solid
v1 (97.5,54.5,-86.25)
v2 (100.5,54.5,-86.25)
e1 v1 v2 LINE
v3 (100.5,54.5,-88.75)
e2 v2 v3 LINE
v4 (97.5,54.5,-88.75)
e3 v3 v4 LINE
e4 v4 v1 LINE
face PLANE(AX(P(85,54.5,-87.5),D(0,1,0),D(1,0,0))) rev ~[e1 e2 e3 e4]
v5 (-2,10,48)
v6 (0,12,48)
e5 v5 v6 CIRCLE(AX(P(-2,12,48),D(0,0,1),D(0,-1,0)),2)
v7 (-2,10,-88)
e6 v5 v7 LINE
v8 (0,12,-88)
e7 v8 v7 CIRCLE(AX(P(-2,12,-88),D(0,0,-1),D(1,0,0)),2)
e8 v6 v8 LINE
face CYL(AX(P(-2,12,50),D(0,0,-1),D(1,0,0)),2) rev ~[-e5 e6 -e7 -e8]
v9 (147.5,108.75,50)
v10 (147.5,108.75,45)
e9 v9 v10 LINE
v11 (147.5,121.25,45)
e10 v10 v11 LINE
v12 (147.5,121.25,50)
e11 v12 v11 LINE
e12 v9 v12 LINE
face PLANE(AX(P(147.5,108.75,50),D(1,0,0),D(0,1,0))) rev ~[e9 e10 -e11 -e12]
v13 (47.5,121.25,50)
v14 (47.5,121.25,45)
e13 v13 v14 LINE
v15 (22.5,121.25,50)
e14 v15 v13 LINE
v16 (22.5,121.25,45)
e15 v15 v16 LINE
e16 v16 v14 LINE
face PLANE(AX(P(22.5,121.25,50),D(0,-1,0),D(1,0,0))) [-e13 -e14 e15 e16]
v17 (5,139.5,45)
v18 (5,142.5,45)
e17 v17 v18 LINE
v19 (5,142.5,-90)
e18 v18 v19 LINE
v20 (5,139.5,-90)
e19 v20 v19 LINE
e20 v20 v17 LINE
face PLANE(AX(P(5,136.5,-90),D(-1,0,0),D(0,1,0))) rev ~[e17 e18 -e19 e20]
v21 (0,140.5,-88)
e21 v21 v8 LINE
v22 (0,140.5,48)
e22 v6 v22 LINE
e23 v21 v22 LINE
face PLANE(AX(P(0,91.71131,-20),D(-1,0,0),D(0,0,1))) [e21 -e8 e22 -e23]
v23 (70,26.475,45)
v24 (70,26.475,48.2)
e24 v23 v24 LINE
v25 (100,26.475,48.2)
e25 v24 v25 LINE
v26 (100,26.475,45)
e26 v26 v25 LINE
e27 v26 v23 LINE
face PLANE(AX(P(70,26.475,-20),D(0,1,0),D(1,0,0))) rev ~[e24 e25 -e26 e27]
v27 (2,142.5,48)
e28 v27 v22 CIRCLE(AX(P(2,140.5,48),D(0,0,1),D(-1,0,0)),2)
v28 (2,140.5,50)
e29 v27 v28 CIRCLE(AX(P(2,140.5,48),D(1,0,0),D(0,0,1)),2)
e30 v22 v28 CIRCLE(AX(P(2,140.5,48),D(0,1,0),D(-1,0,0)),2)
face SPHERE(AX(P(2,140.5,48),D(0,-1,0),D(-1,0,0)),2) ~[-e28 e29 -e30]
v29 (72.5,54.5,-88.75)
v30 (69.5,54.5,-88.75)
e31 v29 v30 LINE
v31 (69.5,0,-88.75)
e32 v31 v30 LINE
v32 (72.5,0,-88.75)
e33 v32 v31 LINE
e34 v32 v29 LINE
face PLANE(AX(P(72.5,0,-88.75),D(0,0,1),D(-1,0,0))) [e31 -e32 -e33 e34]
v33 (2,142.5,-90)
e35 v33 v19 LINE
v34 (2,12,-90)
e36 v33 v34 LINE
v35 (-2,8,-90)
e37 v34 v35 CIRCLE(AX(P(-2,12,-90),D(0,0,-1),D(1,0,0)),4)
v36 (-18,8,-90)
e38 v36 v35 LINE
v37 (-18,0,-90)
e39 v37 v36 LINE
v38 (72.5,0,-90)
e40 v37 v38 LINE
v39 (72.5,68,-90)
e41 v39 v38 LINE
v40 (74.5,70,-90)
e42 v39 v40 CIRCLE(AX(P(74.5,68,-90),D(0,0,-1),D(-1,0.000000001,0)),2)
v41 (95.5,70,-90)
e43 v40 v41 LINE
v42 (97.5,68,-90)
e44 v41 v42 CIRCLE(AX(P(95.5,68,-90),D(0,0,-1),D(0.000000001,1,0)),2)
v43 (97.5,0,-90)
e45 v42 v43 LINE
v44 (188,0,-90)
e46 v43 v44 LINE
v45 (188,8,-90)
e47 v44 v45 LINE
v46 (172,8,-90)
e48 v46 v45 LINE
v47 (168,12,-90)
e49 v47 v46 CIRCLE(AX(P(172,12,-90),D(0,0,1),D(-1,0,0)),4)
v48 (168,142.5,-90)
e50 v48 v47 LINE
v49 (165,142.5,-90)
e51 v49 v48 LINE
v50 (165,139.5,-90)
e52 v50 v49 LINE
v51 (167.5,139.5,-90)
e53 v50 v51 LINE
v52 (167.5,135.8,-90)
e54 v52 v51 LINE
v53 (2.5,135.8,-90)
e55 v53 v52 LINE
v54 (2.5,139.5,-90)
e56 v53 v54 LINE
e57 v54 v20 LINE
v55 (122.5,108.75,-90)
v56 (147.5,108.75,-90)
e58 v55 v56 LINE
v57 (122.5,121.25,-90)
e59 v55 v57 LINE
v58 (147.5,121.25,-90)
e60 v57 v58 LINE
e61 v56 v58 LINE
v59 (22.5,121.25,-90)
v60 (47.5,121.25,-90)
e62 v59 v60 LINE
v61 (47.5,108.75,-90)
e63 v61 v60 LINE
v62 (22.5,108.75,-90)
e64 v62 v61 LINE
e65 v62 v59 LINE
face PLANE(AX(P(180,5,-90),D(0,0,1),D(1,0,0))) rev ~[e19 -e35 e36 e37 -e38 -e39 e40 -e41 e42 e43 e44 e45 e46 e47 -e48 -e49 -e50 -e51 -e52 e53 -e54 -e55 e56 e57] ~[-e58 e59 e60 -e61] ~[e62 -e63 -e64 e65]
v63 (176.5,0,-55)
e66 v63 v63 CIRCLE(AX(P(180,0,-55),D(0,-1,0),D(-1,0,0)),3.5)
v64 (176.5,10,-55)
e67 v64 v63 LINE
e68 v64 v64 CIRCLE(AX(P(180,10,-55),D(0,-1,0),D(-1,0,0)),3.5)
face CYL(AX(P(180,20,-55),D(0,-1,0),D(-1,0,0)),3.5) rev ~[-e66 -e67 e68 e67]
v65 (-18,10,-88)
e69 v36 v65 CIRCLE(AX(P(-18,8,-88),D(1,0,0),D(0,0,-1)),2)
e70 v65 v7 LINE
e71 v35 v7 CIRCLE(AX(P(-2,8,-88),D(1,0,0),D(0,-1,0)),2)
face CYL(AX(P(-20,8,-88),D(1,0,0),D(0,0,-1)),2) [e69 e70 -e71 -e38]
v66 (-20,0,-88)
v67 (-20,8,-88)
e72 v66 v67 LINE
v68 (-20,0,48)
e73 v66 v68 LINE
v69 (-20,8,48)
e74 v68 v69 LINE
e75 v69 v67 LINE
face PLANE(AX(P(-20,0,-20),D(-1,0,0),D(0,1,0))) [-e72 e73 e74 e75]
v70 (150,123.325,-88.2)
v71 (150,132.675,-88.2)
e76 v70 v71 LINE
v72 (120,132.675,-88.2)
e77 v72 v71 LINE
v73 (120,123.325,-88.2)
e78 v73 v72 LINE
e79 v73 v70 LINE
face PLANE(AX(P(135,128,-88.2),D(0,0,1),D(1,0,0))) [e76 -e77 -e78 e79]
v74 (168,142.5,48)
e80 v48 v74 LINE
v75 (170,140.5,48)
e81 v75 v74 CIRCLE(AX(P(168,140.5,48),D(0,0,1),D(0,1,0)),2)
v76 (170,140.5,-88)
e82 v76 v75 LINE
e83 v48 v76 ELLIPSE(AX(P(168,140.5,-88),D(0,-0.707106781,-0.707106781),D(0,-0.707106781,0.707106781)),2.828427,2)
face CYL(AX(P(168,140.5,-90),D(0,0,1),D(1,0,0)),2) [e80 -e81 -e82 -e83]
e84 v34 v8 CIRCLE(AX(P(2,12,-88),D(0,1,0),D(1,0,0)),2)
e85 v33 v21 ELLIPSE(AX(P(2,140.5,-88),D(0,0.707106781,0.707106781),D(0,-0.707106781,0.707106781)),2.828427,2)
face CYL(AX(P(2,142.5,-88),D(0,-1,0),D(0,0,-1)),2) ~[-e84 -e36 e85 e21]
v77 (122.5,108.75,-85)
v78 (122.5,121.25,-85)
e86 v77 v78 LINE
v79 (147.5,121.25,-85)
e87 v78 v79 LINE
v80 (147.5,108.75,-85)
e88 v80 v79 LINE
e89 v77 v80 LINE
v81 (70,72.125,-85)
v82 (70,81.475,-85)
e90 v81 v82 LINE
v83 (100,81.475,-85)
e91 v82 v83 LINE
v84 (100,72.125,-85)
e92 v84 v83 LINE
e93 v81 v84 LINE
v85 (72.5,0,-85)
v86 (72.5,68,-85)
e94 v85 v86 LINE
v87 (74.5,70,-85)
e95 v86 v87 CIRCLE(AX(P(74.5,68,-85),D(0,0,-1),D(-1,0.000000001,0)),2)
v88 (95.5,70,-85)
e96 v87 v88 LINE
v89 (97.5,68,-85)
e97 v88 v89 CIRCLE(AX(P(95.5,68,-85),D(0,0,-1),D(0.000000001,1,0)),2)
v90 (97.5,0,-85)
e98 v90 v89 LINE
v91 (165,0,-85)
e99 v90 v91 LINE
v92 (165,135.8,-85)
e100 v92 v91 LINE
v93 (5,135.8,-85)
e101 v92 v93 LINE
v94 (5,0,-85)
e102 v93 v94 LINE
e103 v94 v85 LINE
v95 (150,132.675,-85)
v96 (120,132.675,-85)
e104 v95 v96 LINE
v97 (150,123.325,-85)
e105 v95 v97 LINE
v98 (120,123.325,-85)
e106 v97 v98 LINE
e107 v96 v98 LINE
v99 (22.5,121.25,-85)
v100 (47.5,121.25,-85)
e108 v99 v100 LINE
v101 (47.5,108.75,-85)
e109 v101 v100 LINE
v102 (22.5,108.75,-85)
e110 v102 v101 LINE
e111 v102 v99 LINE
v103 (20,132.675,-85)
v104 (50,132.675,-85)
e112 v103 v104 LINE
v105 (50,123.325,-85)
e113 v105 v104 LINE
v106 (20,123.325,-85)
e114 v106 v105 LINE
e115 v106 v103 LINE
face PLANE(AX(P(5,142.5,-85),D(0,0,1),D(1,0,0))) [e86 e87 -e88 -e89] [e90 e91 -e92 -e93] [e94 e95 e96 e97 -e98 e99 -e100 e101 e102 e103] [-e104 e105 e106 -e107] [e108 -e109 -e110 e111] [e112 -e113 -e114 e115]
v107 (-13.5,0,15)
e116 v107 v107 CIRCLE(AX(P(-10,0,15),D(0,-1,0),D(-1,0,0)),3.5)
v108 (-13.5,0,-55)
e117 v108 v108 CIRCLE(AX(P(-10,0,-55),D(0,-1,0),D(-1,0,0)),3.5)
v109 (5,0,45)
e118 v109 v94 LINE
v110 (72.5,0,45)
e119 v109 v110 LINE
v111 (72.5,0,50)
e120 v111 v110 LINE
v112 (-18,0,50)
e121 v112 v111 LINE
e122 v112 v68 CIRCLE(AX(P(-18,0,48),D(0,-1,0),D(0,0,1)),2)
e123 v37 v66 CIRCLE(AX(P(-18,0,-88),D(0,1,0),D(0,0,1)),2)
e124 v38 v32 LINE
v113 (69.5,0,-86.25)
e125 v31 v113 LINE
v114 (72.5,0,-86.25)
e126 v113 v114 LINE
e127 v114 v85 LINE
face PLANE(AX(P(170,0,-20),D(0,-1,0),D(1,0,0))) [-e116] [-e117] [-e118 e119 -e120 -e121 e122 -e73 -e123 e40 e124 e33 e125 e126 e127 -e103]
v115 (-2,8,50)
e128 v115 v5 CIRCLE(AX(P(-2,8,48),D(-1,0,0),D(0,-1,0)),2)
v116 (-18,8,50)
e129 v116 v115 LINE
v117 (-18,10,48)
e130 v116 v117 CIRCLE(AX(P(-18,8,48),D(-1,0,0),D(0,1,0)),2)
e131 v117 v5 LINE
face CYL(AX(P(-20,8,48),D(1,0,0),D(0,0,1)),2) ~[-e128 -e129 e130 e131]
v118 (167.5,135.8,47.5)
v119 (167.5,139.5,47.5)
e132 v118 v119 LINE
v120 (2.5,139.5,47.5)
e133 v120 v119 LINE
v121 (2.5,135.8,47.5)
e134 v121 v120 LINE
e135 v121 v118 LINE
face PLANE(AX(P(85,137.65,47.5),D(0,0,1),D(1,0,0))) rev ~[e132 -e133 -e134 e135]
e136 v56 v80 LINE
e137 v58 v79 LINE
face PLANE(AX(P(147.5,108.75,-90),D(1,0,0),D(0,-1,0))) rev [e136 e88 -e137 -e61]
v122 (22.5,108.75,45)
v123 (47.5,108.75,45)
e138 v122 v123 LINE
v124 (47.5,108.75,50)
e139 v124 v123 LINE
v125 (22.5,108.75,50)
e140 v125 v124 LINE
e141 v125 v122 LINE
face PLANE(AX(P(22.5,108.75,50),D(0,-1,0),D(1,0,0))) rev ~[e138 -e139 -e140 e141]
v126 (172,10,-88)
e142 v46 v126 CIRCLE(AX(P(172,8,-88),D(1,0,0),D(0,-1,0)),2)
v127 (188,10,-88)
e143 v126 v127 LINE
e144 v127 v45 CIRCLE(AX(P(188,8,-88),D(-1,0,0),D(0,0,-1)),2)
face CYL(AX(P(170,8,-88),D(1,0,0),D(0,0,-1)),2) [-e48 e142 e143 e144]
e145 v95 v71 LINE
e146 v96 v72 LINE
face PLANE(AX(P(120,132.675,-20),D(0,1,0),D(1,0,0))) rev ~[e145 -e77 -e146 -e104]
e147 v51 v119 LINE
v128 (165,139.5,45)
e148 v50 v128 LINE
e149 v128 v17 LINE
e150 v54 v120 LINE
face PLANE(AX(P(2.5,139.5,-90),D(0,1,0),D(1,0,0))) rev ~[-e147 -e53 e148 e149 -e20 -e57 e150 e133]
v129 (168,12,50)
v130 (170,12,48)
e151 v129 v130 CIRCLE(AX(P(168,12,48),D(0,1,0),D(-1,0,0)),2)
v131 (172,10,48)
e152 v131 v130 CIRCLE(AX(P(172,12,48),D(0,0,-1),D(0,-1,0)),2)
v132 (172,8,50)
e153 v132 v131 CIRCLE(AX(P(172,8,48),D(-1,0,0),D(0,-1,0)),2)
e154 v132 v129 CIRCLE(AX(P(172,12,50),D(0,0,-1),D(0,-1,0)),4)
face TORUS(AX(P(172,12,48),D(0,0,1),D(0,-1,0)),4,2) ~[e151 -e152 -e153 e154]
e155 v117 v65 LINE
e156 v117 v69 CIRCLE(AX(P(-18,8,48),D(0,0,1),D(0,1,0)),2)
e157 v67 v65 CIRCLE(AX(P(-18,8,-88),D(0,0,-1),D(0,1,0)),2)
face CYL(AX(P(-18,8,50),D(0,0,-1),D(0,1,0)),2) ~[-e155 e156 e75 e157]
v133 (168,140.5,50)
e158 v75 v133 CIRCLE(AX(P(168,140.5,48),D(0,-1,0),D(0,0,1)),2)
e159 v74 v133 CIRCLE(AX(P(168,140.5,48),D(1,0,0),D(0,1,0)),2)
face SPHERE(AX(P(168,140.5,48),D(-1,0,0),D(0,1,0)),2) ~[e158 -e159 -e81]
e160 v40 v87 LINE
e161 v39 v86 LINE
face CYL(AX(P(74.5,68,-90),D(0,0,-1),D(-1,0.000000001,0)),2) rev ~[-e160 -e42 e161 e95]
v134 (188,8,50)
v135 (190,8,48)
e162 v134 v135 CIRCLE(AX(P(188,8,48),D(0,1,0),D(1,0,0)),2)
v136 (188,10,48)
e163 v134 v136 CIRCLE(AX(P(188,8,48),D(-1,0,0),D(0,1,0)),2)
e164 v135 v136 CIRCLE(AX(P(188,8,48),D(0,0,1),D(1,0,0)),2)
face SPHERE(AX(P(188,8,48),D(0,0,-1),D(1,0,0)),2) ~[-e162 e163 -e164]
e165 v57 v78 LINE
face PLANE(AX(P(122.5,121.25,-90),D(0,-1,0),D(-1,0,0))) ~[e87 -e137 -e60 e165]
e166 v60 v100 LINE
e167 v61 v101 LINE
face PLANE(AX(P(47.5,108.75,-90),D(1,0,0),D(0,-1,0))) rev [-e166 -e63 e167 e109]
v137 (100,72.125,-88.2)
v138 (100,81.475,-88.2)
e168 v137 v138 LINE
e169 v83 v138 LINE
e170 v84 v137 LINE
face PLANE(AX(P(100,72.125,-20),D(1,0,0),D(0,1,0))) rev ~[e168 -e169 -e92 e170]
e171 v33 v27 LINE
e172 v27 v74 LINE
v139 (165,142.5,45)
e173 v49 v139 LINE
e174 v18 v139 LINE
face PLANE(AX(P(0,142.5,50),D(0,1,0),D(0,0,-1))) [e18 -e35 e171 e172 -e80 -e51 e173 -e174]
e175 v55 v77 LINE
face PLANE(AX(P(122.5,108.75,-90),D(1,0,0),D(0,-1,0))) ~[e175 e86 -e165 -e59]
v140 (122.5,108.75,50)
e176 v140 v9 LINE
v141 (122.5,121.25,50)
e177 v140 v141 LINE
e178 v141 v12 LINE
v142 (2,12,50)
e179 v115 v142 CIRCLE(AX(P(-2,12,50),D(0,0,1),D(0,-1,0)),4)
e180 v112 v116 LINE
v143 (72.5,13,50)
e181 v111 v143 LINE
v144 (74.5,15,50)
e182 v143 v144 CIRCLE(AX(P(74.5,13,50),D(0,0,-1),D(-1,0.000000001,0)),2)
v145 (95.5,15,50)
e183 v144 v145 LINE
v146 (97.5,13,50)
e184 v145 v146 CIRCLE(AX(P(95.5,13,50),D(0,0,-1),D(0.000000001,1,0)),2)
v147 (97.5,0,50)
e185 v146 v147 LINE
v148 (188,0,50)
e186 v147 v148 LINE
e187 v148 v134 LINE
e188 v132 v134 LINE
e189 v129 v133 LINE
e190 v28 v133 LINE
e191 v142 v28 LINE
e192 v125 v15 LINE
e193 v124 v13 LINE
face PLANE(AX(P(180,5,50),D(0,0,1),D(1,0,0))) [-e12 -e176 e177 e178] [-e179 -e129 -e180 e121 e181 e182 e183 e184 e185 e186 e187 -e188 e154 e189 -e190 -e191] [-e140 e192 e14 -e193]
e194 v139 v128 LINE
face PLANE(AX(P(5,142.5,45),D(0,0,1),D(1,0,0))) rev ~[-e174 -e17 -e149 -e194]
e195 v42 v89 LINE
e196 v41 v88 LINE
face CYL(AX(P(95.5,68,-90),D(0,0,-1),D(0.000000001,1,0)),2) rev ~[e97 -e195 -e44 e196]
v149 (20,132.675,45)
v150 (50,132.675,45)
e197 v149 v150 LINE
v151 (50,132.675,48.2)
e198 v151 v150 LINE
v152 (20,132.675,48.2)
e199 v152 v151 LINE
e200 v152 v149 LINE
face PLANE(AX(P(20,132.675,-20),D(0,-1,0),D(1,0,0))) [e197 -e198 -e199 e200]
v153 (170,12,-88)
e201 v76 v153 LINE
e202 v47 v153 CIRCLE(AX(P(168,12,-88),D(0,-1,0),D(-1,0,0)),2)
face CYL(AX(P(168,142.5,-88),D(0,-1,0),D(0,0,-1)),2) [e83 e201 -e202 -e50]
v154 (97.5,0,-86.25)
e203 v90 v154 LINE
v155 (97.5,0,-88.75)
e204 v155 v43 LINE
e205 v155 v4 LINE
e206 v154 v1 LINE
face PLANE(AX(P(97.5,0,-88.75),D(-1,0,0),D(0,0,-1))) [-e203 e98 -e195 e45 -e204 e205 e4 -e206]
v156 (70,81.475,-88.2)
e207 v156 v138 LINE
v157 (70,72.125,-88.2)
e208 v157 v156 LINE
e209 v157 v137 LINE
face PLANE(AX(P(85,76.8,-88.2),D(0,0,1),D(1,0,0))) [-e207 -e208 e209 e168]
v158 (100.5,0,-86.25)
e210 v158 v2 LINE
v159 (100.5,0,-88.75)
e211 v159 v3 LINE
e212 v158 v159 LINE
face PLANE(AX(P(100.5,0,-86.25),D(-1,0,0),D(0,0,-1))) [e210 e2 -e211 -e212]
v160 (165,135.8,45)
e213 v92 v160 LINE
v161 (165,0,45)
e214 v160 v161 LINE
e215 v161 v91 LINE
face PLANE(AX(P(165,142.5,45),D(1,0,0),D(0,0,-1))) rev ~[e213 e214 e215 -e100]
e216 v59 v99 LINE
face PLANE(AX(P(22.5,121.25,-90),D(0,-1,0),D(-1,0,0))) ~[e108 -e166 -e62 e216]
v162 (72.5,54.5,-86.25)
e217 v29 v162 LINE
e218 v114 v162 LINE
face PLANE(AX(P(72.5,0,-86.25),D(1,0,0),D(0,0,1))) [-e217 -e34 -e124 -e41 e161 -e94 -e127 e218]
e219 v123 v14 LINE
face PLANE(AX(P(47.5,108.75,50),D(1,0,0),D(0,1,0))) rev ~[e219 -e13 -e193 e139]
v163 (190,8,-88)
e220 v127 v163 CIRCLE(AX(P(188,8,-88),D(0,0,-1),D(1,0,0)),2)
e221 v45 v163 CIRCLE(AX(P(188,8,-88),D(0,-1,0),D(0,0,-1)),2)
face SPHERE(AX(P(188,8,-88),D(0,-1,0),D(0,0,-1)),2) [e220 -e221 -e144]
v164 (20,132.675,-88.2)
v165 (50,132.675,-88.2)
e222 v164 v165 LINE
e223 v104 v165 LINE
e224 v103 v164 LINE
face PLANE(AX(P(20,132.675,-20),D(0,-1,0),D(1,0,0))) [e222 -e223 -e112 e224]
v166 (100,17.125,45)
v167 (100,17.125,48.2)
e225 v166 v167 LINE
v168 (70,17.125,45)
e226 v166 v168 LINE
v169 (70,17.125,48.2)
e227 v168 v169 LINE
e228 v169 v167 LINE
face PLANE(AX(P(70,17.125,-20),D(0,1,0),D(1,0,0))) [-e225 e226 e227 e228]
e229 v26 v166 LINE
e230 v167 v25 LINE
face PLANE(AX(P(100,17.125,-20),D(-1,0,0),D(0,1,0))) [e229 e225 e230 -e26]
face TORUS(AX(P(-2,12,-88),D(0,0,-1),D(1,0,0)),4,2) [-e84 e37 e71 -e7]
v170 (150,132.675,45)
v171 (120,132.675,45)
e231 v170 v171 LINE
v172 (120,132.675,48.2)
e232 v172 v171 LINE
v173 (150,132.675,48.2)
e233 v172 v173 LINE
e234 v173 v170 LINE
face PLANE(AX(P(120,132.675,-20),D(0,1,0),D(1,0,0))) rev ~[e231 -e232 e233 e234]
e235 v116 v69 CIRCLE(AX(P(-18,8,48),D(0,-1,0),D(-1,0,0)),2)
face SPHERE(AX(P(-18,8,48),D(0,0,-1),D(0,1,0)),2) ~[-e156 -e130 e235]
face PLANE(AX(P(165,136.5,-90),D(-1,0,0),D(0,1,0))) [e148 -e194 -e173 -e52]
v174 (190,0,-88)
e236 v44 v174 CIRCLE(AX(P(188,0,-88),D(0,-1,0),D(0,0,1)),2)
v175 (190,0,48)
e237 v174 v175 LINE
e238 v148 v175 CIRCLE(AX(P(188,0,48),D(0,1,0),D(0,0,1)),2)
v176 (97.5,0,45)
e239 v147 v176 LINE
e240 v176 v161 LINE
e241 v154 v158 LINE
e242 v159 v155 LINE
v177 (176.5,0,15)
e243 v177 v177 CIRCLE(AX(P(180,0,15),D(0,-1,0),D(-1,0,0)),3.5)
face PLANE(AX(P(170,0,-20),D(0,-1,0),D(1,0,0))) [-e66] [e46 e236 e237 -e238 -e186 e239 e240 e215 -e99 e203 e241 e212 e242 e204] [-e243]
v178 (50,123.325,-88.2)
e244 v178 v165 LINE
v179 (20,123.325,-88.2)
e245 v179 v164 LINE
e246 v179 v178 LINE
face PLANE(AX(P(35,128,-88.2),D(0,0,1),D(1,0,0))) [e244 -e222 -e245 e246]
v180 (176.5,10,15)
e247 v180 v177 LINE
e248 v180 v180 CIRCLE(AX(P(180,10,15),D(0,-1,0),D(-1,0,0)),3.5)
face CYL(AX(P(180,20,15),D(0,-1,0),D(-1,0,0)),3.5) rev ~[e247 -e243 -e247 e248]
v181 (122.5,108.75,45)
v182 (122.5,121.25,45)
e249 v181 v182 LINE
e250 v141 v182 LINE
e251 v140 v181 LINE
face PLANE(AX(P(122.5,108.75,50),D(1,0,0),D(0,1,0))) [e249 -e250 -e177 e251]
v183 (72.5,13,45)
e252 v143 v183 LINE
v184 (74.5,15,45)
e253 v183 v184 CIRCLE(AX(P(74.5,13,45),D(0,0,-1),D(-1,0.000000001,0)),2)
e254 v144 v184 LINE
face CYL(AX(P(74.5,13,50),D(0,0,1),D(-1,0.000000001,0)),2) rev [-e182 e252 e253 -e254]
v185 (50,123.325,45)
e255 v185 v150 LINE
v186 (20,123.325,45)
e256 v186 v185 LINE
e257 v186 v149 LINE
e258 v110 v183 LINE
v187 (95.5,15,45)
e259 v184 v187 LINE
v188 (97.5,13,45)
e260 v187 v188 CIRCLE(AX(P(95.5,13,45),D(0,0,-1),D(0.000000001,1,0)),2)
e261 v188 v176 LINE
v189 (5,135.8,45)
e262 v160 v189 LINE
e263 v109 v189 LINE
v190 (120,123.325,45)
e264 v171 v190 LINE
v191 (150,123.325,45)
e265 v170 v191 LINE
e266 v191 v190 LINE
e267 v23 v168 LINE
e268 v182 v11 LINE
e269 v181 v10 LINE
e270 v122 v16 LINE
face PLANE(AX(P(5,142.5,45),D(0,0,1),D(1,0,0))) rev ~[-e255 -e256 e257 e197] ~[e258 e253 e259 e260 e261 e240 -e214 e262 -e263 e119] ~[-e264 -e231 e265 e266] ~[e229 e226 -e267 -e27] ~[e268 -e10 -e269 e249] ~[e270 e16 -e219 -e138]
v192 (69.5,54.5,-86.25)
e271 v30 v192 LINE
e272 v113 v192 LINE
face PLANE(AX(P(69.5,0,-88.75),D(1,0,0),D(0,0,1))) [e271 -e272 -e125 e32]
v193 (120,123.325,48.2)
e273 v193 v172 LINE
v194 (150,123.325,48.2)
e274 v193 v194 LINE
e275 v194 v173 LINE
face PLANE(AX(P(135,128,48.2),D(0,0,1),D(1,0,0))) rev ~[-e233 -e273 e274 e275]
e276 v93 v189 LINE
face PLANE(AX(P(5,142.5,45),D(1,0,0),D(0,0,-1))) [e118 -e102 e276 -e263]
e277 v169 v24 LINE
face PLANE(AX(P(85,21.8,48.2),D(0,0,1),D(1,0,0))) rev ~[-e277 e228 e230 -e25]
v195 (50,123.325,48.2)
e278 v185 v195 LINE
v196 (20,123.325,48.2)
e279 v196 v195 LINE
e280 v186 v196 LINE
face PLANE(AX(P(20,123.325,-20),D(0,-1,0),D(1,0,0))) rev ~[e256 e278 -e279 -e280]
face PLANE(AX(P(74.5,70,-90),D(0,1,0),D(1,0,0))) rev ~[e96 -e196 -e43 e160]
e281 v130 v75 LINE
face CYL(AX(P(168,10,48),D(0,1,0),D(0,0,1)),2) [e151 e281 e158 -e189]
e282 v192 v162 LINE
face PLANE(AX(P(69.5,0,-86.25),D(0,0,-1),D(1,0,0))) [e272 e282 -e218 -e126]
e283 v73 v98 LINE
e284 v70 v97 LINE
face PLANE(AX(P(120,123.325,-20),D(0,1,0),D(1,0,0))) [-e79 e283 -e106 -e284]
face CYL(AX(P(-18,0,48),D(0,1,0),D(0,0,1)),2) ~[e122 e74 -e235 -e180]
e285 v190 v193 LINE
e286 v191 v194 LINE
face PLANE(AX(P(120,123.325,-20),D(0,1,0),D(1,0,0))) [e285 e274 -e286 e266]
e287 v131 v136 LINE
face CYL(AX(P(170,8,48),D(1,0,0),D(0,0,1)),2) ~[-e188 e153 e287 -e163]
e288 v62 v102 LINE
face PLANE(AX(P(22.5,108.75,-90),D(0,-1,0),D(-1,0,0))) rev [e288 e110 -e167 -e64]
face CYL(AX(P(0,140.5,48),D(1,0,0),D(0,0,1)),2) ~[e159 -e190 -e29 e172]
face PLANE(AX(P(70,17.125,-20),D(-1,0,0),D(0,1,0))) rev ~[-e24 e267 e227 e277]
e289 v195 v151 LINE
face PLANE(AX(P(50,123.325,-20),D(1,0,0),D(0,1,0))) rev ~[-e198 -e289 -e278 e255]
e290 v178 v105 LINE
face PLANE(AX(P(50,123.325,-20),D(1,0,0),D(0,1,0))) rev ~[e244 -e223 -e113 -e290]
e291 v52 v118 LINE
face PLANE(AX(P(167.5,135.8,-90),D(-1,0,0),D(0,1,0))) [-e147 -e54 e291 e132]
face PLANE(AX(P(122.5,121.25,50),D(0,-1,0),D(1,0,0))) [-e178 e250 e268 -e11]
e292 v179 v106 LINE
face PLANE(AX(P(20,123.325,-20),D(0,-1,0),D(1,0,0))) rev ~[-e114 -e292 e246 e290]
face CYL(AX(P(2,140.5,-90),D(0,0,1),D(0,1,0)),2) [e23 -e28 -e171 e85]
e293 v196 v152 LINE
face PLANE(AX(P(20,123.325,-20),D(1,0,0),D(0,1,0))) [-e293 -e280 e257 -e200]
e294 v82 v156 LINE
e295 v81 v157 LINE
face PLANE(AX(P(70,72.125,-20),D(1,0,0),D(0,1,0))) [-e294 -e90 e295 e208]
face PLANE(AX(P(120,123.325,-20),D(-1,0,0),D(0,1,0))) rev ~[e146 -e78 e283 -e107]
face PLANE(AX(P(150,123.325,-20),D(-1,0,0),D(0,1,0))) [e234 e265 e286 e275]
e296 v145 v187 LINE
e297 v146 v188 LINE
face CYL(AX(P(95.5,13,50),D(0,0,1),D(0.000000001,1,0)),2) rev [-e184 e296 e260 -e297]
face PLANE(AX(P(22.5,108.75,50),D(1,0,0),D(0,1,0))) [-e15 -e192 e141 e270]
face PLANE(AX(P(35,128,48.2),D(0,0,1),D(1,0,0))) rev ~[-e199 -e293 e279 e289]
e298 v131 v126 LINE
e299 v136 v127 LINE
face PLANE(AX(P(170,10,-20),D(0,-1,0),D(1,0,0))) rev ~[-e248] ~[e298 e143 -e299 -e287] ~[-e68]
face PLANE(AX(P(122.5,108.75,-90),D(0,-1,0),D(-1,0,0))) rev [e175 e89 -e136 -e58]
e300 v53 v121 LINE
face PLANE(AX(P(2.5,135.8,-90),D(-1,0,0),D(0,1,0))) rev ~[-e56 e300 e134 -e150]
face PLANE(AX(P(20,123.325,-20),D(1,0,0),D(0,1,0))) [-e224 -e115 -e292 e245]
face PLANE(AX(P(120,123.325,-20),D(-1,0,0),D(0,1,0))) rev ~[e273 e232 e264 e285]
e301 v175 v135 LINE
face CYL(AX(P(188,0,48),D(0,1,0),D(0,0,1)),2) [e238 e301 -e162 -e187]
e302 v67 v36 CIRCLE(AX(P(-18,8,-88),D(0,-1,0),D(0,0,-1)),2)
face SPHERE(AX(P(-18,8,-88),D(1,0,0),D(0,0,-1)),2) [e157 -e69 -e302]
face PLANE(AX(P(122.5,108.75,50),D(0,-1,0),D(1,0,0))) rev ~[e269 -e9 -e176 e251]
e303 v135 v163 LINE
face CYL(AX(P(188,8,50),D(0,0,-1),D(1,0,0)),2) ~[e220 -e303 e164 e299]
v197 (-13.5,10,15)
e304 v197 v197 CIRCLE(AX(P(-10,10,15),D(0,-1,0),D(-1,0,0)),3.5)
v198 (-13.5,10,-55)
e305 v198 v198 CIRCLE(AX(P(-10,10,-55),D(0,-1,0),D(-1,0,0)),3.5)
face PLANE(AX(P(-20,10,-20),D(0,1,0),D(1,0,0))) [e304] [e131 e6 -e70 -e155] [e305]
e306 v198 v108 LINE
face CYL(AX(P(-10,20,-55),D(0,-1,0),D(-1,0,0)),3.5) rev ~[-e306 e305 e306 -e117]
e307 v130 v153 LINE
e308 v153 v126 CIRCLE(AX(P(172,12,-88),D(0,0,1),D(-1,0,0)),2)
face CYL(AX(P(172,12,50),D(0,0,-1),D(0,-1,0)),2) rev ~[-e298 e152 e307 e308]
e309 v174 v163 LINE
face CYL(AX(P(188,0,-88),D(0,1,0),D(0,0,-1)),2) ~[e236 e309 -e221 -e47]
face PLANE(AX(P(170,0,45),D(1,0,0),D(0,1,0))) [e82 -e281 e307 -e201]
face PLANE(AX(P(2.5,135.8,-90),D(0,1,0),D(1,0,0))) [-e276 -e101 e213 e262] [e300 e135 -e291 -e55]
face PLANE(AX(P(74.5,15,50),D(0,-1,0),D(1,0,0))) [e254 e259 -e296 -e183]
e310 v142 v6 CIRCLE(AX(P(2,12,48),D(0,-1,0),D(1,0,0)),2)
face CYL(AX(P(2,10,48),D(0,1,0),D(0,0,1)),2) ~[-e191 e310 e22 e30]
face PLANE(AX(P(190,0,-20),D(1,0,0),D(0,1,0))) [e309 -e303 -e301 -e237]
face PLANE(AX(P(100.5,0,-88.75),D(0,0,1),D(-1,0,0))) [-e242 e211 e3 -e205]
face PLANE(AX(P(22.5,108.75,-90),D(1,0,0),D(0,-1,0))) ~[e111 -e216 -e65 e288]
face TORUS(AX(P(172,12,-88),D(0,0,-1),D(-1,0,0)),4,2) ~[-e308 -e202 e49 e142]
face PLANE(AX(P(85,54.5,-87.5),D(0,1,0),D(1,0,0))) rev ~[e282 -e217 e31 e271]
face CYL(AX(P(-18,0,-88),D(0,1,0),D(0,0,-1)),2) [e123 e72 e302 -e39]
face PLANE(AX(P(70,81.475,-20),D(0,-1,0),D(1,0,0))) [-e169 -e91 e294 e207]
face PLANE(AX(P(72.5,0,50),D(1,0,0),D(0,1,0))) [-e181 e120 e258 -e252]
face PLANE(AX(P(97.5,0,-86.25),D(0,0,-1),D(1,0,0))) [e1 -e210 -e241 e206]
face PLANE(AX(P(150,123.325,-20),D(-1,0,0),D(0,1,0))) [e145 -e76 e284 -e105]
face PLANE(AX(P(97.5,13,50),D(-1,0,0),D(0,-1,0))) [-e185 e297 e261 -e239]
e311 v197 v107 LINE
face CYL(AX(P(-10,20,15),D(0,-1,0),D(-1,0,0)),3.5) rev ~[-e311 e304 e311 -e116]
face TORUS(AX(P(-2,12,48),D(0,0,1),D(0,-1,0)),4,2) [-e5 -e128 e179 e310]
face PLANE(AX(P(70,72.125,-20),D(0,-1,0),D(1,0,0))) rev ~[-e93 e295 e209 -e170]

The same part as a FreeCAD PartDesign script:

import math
import FreeCAD as App
import Part
import Sketcher
from FreeCAD import Vector
Q = App.Units.Quantity


def edges_at(feature, points):
    """Names of the edges that pass closest to the given points."""
    edges = feature.Shape.Edges
    near = lambda p: min(range(len(edges)), key=lambda i: edges[i].distToShape(Part.Vertex(*p))[0])
    return sorted({f"Edge{near(p) + 1}" for p in points})


def add_polygon(sketch, points):
    """Adds a closed chain of lines whose ends are joined by coincident constraints."""
    first, n = sketch.GeometryCount, len(points)
    for a, b in zip(points, points[1:] + points[:1]):
        sketch.addGeometry(Part.LineSegment(App.Vector(*a, 0), App.Vector(*b, 0)), False)
    for i in range(n):
        sketch.addConstraint(Sketcher.Constraint("Coincident", first + i, 2, first + (i + 1) % n, 1))

doc = App.newDocument("Part")
body = doc.addObject("PartDesign::Body", "Body")

# Sketch on YZ plane
sketch1 = doc.addObject("Sketcher::SketchObject", "Sketch")
body.addObject(sketch1)
sketch1.AttachmentSupport = (doc.YZ_Plane, [""])
sketch1.MapMode = "FlatFace"
add_polygon(sketch1, [(0, -90), (142.5, -90), (142.5, 50), (0, 50), (0, 45), (137.5, 45), (137.5, -85), (0, -85)])  # lines 0-7
sketch1.addConstraint(Sketcher.Constraint("Horizontal", 0))
sketch1.addConstraint(Sketcher.Constraint("Vertical", 1))
sketch1.addConstraint(Sketcher.Constraint("Horizontal", 2))
sketch1.addConstraint(Sketcher.Constraint("Vertical", 3))
sketch1.addConstraint(Sketcher.Constraint("Horizontal", 4))
sketch1.addConstraint(Sketcher.Constraint("Vertical", 5))
sketch1.addConstraint(Sketcher.Constraint("Horizontal", 6))
sketch1.addConstraint(Sketcher.Constraint("Vertical", 7))
sketch1.addConstraint(Sketcher.Constraint("PointOnObject", 2, 2, -2))
sketch1.addConstraint(Sketcher.Constraint("PointOnObject", 6, 2, -2))
sketch1.addConstraint(Sketcher.Constraint("Equal", 3, 7))
sketch1.addConstraint(Sketcher.Constraint("DistanceY", 1, 1, 1, 2, Q("140 mm")))
sketch1.addConstraint(Sketcher.Constraint("DistanceY", 3, 2, 3, 1, Q("5 mm")))
sketch1.addConstraint(Sketcher.Constraint("DistanceX", 0, 1, 0, 2, Q("142.5 mm")))
sketch1.addConstraint(Sketcher.Constraint("DistanceX", 4, 1, 4, 2, Q("137.5 mm")))
sketch1.addConstraint(Sketcher.Constraint("DistanceY", 0, 2, -1, 1, Q("90 mm")))
pad1 = doc.addObject("PartDesign::Pad", "Pad")
body.addObject(pad1)
pad1.Profile = sketch1
pad1.Length = 170

# Sketch on XY plane
sketch2 = doc.addObject("Sketcher::SketchObject", "Sketch001")
body.addObject(sketch2)
sketch2.AttachmentSupport = (doc.XY_Plane, [""])
sketch2.MapMode = "FlatFace"
sketch2.AttachmentOffset = App.Placement(Vector(0, 0, 45), App.Rotation())
add_polygon(sketch2, [(170, 142.5), (170, 0), (165, 0), (165, 142.5)])  # lines 0-3
add_polygon(sketch2, [(5, 142.5), (5, 0), (0, 0), (0, 142.5)])  # lines 4-7
sketch2.addConstraint(Sketcher.Constraint("Vertical", 0))
sketch2.addConstraint(Sketcher.Constraint("Horizontal", 1))
sketch2.addConstraint(Sketcher.Constraint("Vertical", 2))
sketch2.addConstraint(Sketcher.Constraint("Horizontal", 3))
sketch2.addConstraint(Sketcher.Constraint("Vertical", 4))
sketch2.addConstraint(Sketcher.Constraint("Horizontal", 5))
sketch2.addConstraint(Sketcher.Constraint("Vertical", 6))
sketch2.addConstraint(Sketcher.Constraint("Horizontal", 7))
sketch2.addConstraint(Sketcher.Constraint("Coincident", 5, 2, -1, 1))
sketch2.addConstraint(Sketcher.Constraint("PointOnObject", 0, 2, -1))
sketch2.addConstraint(Sketcher.Constraint("Horizontal", 3, 2, 6, 2))
sketch2.addConstraint(Sketcher.Constraint("Equal", 3, 5))
sketch2.addConstraint(Sketcher.Constraint("DistanceX", 1, 2, 1, 1, Q("5 mm")))
sketch2.addConstraint(Sketcher.Constraint("DistanceY", 0, 2, 0, 1, Q("142.5 mm")))
sketch2.addConstraint(Sketcher.Constraint("DistanceX", -1, 1, 0, 2, Q("170 mm")))
pad2 = doc.addObject("PartDesign::Pad", "Pad001")
body.addObject(pad2)
pad2.Profile = sketch2
pad2.Length = 130
pad2.Reversed = True

# Sketch on XZ plane
sketch3 = doc.addObject("Sketcher::SketchObject", "Sketch002")
body.addObject(sketch3)
sketch3.AttachmentSupport = (doc.XZ_Plane, [""])
sketch3.MapMode = "FlatFace"
sketch3.AttachmentOffset = App.Placement(Vector(0, 0, -142.5), App.Rotation())
add_polygon(sketch3, [(5, -85), (5, 45), (165, 45), (165, -85)])  # lines 0-3
sketch3.addConstraint(Sketcher.Constraint("Vertical", 0))
sketch3.addConstraint(Sketcher.Constraint("Horizontal", 1))
sketch3.addConstraint(Sketcher.Constraint("Vertical", 2))
sketch3.addConstraint(Sketcher.Constraint("Horizontal", 3))
sketch3.addConstraint(Sketcher.Constraint("DistanceX", 1, 1, 1, 2, Q("160 mm")))
sketch3.addConstraint(Sketcher.Constraint("DistanceY", 0, 1, 0, 2, Q("130 mm")))
sketch3.addConstraint(Sketcher.Constraint("DistanceX", -1, 1, 0, 2, Q("5 mm")))
sketch3.addConstraint(Sketcher.Constraint("DistanceY", -1, 1, 0, 2, Q("45 mm")))
pocket1 = doc.addObject("PartDesign::Pocket", "Pocket")
body.addObject(pocket1)
pocket1.Profile = sketch3
pocket1.Length = 60
pocket1.Reversed = True

# Sketch on XY plane
sketch4 = doc.addObject("Sketcher::SketchObject", "Sketch003")
body.addObject(sketch4)
sketch4.AttachmentSupport = (doc.XY_Plane, [""])
sketch4.MapMode = "FlatFace"
sketch4.AttachmentOffset = App.Placement(Vector(0, 0, -90), App.Rotation())
add_polygon(sketch4, [(2.5, 139.5), (2.5, 135.8), (167.5, 135.8), (167.5, 139.5)])  # lines 0-3
sketch4.addConstraint(Sketcher.Constraint("Vertical", 0))
sketch4.addConstraint(Sketcher.Constraint("Horizontal", 1))
sketch4.addConstraint(Sketcher.Constraint("Vertical", 2))
sketch4.addConstraint(Sketcher.Constraint("Horizontal", 3))
sketch4.addConstraint(Sketcher.Constraint("DistanceX", 1, 1, 1, 2, Q("165 mm")))
sketch4.addConstraint(Sketcher.Constraint("DistanceY", 0, 2, 0, 1, Q("3.7 mm")))
sketch4.addConstraint(Sketcher.Constraint("DistanceX", -1, 1, 0, 2, Q("2.5 mm")))
sketch4.addConstraint(Sketcher.Constraint("DistanceY", -1, 1, 0, 2, Q("135.8 mm")))
pocket2 = doc.addObject("PartDesign::Pocket", "Pocket001")
body.addObject(pocket2)
pocket2.Profile = sketch4
pocket2.Length = 137.5
pocket2.Reversed = True

# Sketch on XY plane
sketch5 = doc.addObject("Sketcher::SketchObject", "Sketch004")
body.addObject(sketch5)
sketch5.AttachmentSupport = (doc.XY_Plane, [""])
sketch5.MapMode = "FlatFace"
sketch5.AttachmentOffset = App.Placement(Vector(0, 0, -90), App.Rotation())
add_polygon(sketch5, [(5, 142.5), (5, 136.5), (165, 136.5), (165, 142.5)])  # lines 0-3
sketch5.addConstraint(Sketcher.Constraint("Vertical", 0))
sketch5.addConstraint(Sketcher.Constraint("Horizontal", 1))
sketch5.addConstraint(Sketcher.Constraint("Vertical", 2))
sketch5.addConstraint(Sketcher.Constraint("Horizontal", 3))
sketch5.addConstraint(Sketcher.Constraint("DistanceX", 1, 1, 1, 2, Q("160 mm")))
sketch5.addConstraint(Sketcher.Constraint("DistanceY", 0, 2, 0, 1, Q("6 mm")))
sketch5.addConstraint(Sketcher.Constraint("DistanceX", -1, 1, 0, 2, Q("5 mm")))
sketch5.addConstraint(Sketcher.Constraint("DistanceY", -1, 1, 0, 2, Q("136.5 mm")))
pocket3 = doc.addObject("PartDesign::Pocket", "Pocket002")
body.addObject(pocket3)
pocket3.Profile = sketch5
pocket3.Length = 5
pocket3.Reversed = True

# Sketch on XY plane
sketch6 = doc.addObject("Sketcher::SketchObject", "Sketch005")
body.addObject(sketch6)
sketch6.AttachmentSupport = (doc.XY_Plane, [""])
sketch6.MapMode = "FlatFace"
sketch6.AttachmentOffset = App.Placement(Vector(0, 0, -20), App.Rotation())
add_polygon(sketch6, [(-20, 10), (-20, 0), (0, 0), (0, 10)])  # lines 0-3
add_polygon(sketch6, [(170, 10), (170, 0), (190, 0), (190, 10)])  # lines 4-7
sketch6.addConstraint(Sketcher.Constraint("Vertical", 0))
sketch6.addConstraint(Sketcher.Constraint("Horizontal", 1))
sketch6.addConstraint(Sketcher.Constraint("Vertical", 2))
sketch6.addConstraint(Sketcher.Constraint("Horizontal", 3))
sketch6.addConstraint(Sketcher.Constraint("Vertical", 4))
sketch6.addConstraint(Sketcher.Constraint("Horizontal", 5))
sketch6.addConstraint(Sketcher.Constraint("Vertical", 6))
sketch6.addConstraint(Sketcher.Constraint("Horizontal", 7))
sketch6.addConstraint(Sketcher.Constraint("Coincident", 1, 2, -1, 1))
sketch6.addConstraint(Sketcher.Constraint("PointOnObject", 4, 2, -1))
sketch6.addConstraint(Sketcher.Constraint("Horizontal", 3, 2, 6, 2))
sketch6.addConstraint(Sketcher.Constraint("Equal", 3, 5))
sketch6.addConstraint(Sketcher.Constraint("DistanceX", 1, 1, 1, 2, Q("20 mm")))
sketch6.addConstraint(Sketcher.Constraint("DistanceY", 0, 2, 0, 1, Q("10 mm")))
sketch6.addConstraint(Sketcher.Constraint("DistanceX", -1, 1, 4, 2, Q("170 mm")))
pad3 = doc.addObject("PartDesign::Pad", "Pad002")
body.addObject(pad3)
pad3.Profile = sketch6
pad3.Length = 140
pad3.Midplane = True

# Sketch on XY plane
sketch7 = doc.addObject("Sketcher::SketchObject", "Sketch006")
body.addObject(sketch7)
sketch7.AttachmentSupport = (doc.XY_Plane, [""])
sketch7.MapMode = "FlatFace"
sketch7.AttachmentOffset = App.Placement(Vector(0, 0, 50), App.Rotation())
add_polygon(sketch7, [(22.5, 121.25), (22.5, 108.75), (47.5, 108.75), (47.5, 121.25)])  # lines 0-3
add_polygon(sketch7, [(122.5, 121.25), (122.5, 108.75), (147.5, 108.75), (147.5, 121.25)])  # lines 4-7
sketch7.addConstraint(Sketcher.Constraint("Vertical", 0))
sketch7.addConstraint(Sketcher.Constraint("Horizontal", 1))
sketch7.addConstraint(Sketcher.Constraint("Vertical", 2))
sketch7.addConstraint(Sketcher.Constraint("Horizontal", 3))
sketch7.addConstraint(Sketcher.Constraint("Vertical", 4))
sketch7.addConstraint(Sketcher.Constraint("Horizontal", 5))
sketch7.addConstraint(Sketcher.Constraint("Vertical", 6))
sketch7.addConstraint(Sketcher.Constraint("Horizontal", 7))
sketch7.addConstraint(Sketcher.Constraint("Horizontal", 1, 2, 4, 2))
sketch7.addConstraint(Sketcher.Constraint("Horizontal", 3, 2, 6, 2))
sketch7.addConstraint(Sketcher.Constraint("Equal", 3, 5))
sketch7.addConstraint(Sketcher.Constraint("DistanceX", 1, 1, 1, 2, Q("25 mm")))
sketch7.addConstraint(Sketcher.Constraint("DistanceY", 0, 2, 0, 1, Q("12.5 mm")))
sketch7.addConstraint(Sketcher.Constraint("DistanceX", 1, 2, 4, 2, Q("75 mm")))
sketch7.addConstraint(Sketcher.Constraint("DistanceX", -1, 1, 0, 2, Q("22.5 mm")))
sketch7.addConstraint(Sketcher.Constraint("DistanceY", -1, 1, 0, 2, Q("108.75 mm")))
pocket4 = doc.addObject("PartDesign::Pocket", "Pocket003")
body.addObject(pocket4)
pocket4.Profile = sketch7
pocket4.Length = 5

# Sketch on XZ plane
sketch8 = doc.addObject("Sketcher::SketchObject", "Sketch007")
body.addObject(sketch8)
sketch8.AttachmentSupport = (doc.XZ_Plane, [""])
sketch8.MapMode = "FlatFace"
sketch8.AttachmentOffset = App.Placement(Vector(0, 0, -10), App.Rotation())
sketch8.addGeometry(Part.Circle(Vector(-10, 15, 0), Vector(0, 0, 1), 3.5), False)
sketch8.addGeometry(Part.Circle(Vector(-10, -55, 0), Vector(0, 0, 1), 3.5), False)
sketch8.addGeometry(Part.Circle(Vector(180, -55, 0), Vector(0, 0, 1), 3.5), False)
sketch8.addGeometry(Part.Circle(Vector(180, 15, 0), Vector(0, 0, 1), 3.5), False)
sketch8.addConstraint(Sketcher.Constraint("Equal", 0, 1))
sketch8.addConstraint(Sketcher.Constraint("Equal", 1, 2))
sketch8.addConstraint(Sketcher.Constraint("Equal", 2, 3))
sketch8.addConstraint(Sketcher.Constraint("Horizontal", 1, 3, 2, 3))
sketch8.addConstraint(Sketcher.Constraint("Horizontal", 0, 3, 3, 3))
sketch8.addConstraint(Sketcher.Constraint("Vertical", 0, 3, 1, 3))
sketch8.addConstraint(Sketcher.Constraint("Vertical", 2, 3, 3, 3))
sketch8.addConstraint(Sketcher.Constraint("Diameter", 0, Q("7 mm")))
sketch8.addConstraint(Sketcher.Constraint("DistanceX", 0, 3, -1, 1, Q("10 mm")))
sketch8.addConstraint(Sketcher.Constraint("DistanceY", -1, 1, 0, 3, Q("15 mm")))
sketch8.addConstraint(Sketcher.Constraint("DistanceY", 1, 3, -1, 1, Q("55 mm")))
sketch8.addConstraint(Sketcher.Constraint("DistanceX", -1, 1, 2, 3, Q("180 mm")))
doc.recompute()
hole = doc.addObject("PartDesign::Hole", "Hole")
body.addObject(hole)
hole.Profile = sketch8
hole.ThreadType = "None"
hole.Diameter = 7
hole.DepthType = "Dimension"
hole.Depth = 10
hole.DrillPoint = "Flat"
hole.Reversed = True
doc.recompute()

datumplane = doc.addObject("PartDesign::Plane", "DatumPlane")
body.addObject(datumplane)
datumplane.AttachmentSupport = (doc.XY_Plane, [""])
datumplane.MapMode = "FlatFace"
datumplane.AttachmentOffset = App.Placement(Vector(0, 0, -20), App.Rotation())
mirrored = doc.addObject("PartDesign::Mirrored", "Mirrored")
body.addObject(mirrored)
mirrored.Originals = [pocket4]
mirrored.MirrorPlane = (datumplane, [""])
body.Tip = mirrored

# Sketch on XY plane
sketch9 = doc.addObject("Sketcher::SketchObject", "Sketch008")
body.addObject(sketch9)
sketch9.AttachmentSupport = (doc.XY_Plane, [""])
sketch9.MapMode = "FlatFace"
sketch9.AttachmentOffset = App.Placement(Vector(0, 0, -20), App.Rotation())
add_polygon(sketch9, [(120, 132.675), (120, 123.325), (150, 123.325), (150, 132.675)])  # lines 0-3
add_polygon(sketch9, [(20, 132.675), (20, 123.325), (50, 123.325), (50, 132.675)])  # lines 4-7
sketch9.addConstraint(Sketcher.Constraint("Vertical", 0))
sketch9.addConstraint(Sketcher.Constraint("Horizontal", 1))
sketch9.addConstraint(Sketcher.Constraint("Vertical", 2))
sketch9.addConstraint(Sketcher.Constraint("Horizontal", 3))
sketch9.addConstraint(Sketcher.Constraint("Vertical", 4))
sketch9.addConstraint(Sketcher.Constraint("Horizontal", 5))
sketch9.addConstraint(Sketcher.Constraint("Vertical", 6))
sketch9.addConstraint(Sketcher.Constraint("Horizontal", 7))
sketch9.addConstraint(Sketcher.Constraint("Horizontal", 1, 2, 4, 2))
sketch9.addConstraint(Sketcher.Constraint("Horizontal", 3, 2, 6, 2))
sketch9.addConstraint(Sketcher.Constraint("Equal", 3, 5))
sketch9.addConstraint(Sketcher.Constraint("DistanceX", 1, 1, 1, 2, Q("30 mm")))
sketch9.addConstraint(Sketcher.Constraint("DistanceX", -1, 1, 0, 2, Q("120 mm")))
sketch9.addConstraint(Sketcher.Constraint("DistanceX", -1, 1, 4, 2, Q("20 mm")))
sketch9.addConstraint(Sketcher.Constraint("DistanceY", 0, 2, 0, 1, Q("9.35 mm")))
sketch9.addConstraint(Sketcher.Constraint("DistanceY", -1, 1, 0, 2, Q("123.325 mm")))
pocket5 = doc.addObject("PartDesign::Pocket", "Pocket004")
body.addObject(pocket5)
pocket5.Profile = sketch9
pocket5.Length = 136.4
pocket5.Midplane = True

# Sketch on XY plane
sketch10 = doc.addObject("Sketcher::SketchObject", "Sketch009")
body.addObject(sketch10)
sketch10.AttachmentSupport = (doc.XY_Plane, [""])
sketch10.MapMode = "FlatFace"
sketch10.AttachmentOffset = App.Placement(Vector(0, 0, -20), App.Rotation())
add_polygon(sketch10, [(70, 26.475), (70, 17.125), (100, 17.125), (100, 26.475)])  # lines 0-3
sketch10.addConstraint(Sketcher.Constraint("Vertical", 0))
sketch10.addConstraint(Sketcher.Constraint("Horizontal", 1))
sketch10.addConstraint(Sketcher.Constraint("Vertical", 2))
sketch10.addConstraint(Sketcher.Constraint("Horizontal", 3))
sketch10.addConstraint(Sketcher.Constraint("DistanceX", 1, 1, 1, 2, Q("30 mm")))
sketch10.addConstraint(Sketcher.Constraint("DistanceX", -1, 1, 0, 2, Q("70 mm")))
sketch10.addConstraint(Sketcher.Constraint("DistanceY", 0, 2, 0, 1, Q("9.35 mm")))
sketch10.addConstraint(Sketcher.Constraint("DistanceY", -1, 1, 0, 2, Q("17.125 mm")))
pocket6 = doc.addObject("PartDesign::Pocket", "Pocket005")
body.addObject(pocket6)
pocket6.Profile = sketch10
pocket6.Length = 68.2
pocket6.Reversed = True

# Sketch on XY plane
sketch11 = doc.addObject("Sketcher::SketchObject", "Sketch010")
body.addObject(sketch11)
sketch11.AttachmentSupport = (doc.XY_Plane, [""])
sketch11.MapMode = "FlatFace"
sketch11.AttachmentOffset = App.Placement(Vector(0, 0, 50), App.Rotation())
sketch11.addGeometry(Part.LineSegment(Vector(72.5, 0, 0), Vector(72.5, 13, 0)), False)
sketch11.addGeometry(Part.ArcOfCircle(Part.Circle(Vector(74.5, 13, 0), Vector(0, 0, 1), 2), math.radians(90), math.radians(180)), False)
sketch11.addGeometry(Part.LineSegment(Vector(74.5, 15, 0), Vector(95.5, 15, 0)), False)
sketch11.addGeometry(Part.ArcOfCircle(Part.Circle(Vector(95.5, 13, 0), Vector(0, 0, 1), 2), math.radians(0), math.radians(90)), False)
sketch11.addGeometry(Part.LineSegment(Vector(97.5, 13, 0), Vector(97.5, 0, 0)), False)
sketch11.addGeometry(Part.LineSegment(Vector(97.5, 0, 0), Vector(72.5, 0, 0)), False)
sketch11.addConstraint(Sketcher.Constraint("Tangent", 0, 2, 1, 2))
sketch11.addConstraint(Sketcher.Constraint("Tangent", 1, 1, 2, 1))
sketch11.addConstraint(Sketcher.Constraint("Tangent", 2, 2, 3, 2))
sketch11.addConstraint(Sketcher.Constraint("Tangent", 3, 1, 4, 1))
sketch11.addConstraint(Sketcher.Constraint("Coincident", 4, 2, 5, 1))
sketch11.addConstraint(Sketcher.Constraint("Coincident", 5, 2, 0, 1))
sketch11.addConstraint(Sketcher.Constraint("Vertical", 0))
sketch11.addConstraint(Sketcher.Constraint("Horizontal", 2))
sketch11.addConstraint(Sketcher.Constraint("Vertical", 4))
sketch11.addConstraint(Sketcher.Constraint("Horizontal", 5))
sketch11.addConstraint(Sketcher.Constraint("Equal", 1, 3))
sketch11.addConstraint(Sketcher.Constraint("PointOnObject", 4, 2, -1))
sketch11.addConstraint(Sketcher.Constraint("Radius", 1, Q("2 mm")))
sketch11.addConstraint(Sketcher.Constraint("DistanceX", 2, 1, 2, 2, Q("21 mm")))
sketch11.addConstraint(Sketcher.Constraint("DistanceY", 0, 1, 0, 2, Q("13 mm")))
sketch11.addConstraint(Sketcher.Constraint("DistanceX", -1, 1, 1, 3, Q("74.5 mm")))
pocket7 = doc.addObject("PartDesign::Pocket", "Pocket006")
body.addObject(pocket7)
pocket7.Profile = sketch11
pocket7.Length = 5

# Sketch on XY plane
sketch12 = doc.addObject("Sketcher::SketchObject", "Sketch011")
body.addObject(sketch12)
sketch12.AttachmentSupport = (doc.XY_Plane, [""])
sketch12.MapMode = "FlatFace"
sketch12.AttachmentOffset = App.Placement(Vector(0, 0, -90), App.Rotation())
sketch12.addGeometry(Part.LineSegment(Vector(74.5, 52.5, 0), Vector(95.5, 52.5, 0)), False)
sketch12.addGeometry(Part.ArcOfCircle(Part.Circle(Vector(95.5, 54.5, 0), Vector(0, 0, 1), 2), math.radians(-90), math.radians(0)), False)
sketch12.addGeometry(Part.LineSegment(Vector(97.5, 54.5, 0), Vector(97.5, 68, 0)), False)
sketch12.addGeometry(Part.ArcOfCircle(Part.Circle(Vector(95.5, 68, 0), Vector(0, 0, 1), 2), math.radians(0), math.radians(90)), False)
sketch12.addGeometry(Part.LineSegment(Vector(95.5, 70, 0), Vector(74.5, 70, 0)), False)
sketch12.addGeometry(Part.ArcOfCircle(Part.Circle(Vector(74.5, 68, 0), Vector(0, 0, 1), 2), math.radians(90), math.radians(180)), False)
sketch12.addGeometry(Part.LineSegment(Vector(72.5, 68, 0), Vector(72.5, 54.5, 0)), False)
sketch12.addGeometry(Part.ArcOfCircle(Part.Circle(Vector(74.5, 54.5, 0), Vector(0, 0, 1), 2), math.radians(-180), math.radians(-90)), False)
sketch12.addConstraint(Sketcher.Constraint("Tangent", 0, 2, 1, 1))
sketch12.addConstraint(Sketcher.Constraint("Tangent", 1, 2, 2, 1))
sketch12.addConstraint(Sketcher.Constraint("Tangent", 2, 2, 3, 1))
sketch12.addConstraint(Sketcher.Constraint("Tangent", 3, 2, 4, 1))
sketch12.addConstraint(Sketcher.Constraint("Tangent", 4, 2, 5, 1))
sketch12.addConstraint(Sketcher.Constraint("Tangent", 5, 2, 6, 1))
sketch12.addConstraint(Sketcher.Constraint("Tangent", 6, 2, 7, 1))
sketch12.addConstraint(Sketcher.Constraint("Tangent", 7, 2, 0, 1))
sketch12.addConstraint(Sketcher.Constraint("Horizontal", 0))
sketch12.addConstraint(Sketcher.Constraint("Vertical", 2))
sketch12.addConstraint(Sketcher.Constraint("Horizontal", 4))
sketch12.addConstraint(Sketcher.Constraint("Vertical", 6))
sketch12.addConstraint(Sketcher.Constraint("Equal", 1, 3))
sketch12.addConstraint(Sketcher.Constraint("Equal", 3, 5))
sketch12.addConstraint(Sketcher.Constraint("Equal", 5, 7))
sketch12.addConstraint(Sketcher.Constraint("Radius", 1, Q("2 mm")))
sketch12.addConstraint(Sketcher.Constraint("DistanceX", 0, 1, 0, 2, Q("21 mm")))
sketch12.addConstraint(Sketcher.Constraint("DistanceY", 2, 1, 2, 2, Q("13.5 mm")))
sketch12.addConstraint(Sketcher.Constraint("DistanceY", -1, 1, 3, 3, Q("68 mm")))
sketch12.addConstraint(Sketcher.Constraint("DistanceX", -1, 1, 1, 3, Q("95.5 mm")))
pocket8 = doc.addObject("PartDesign::Pocket", "Pocket007")
body.addObject(pocket8)
pocket8.Profile = sketch12
pocket8.Length = 5
pocket8.Reversed = True

# Sketch on XY plane
sketch13 = doc.addObject("Sketcher::SketchObject", "Sketch012")
body.addObject(sketch13)
sketch13.AttachmentSupport = (doc.XY_Plane, [""])
sketch13.MapMode = "FlatFace"
sketch13.AttachmentOffset = App.Placement(Vector(0, 0, -20), App.Rotation())
add_polygon(sketch13, [(70, 81.475), (70, 72.125), (100, 72.125), (100, 81.475)])  # lines 0-3
sketch13.addConstraint(Sketcher.Constraint("Vertical", 0))
sketch13.addConstraint(Sketcher.Constraint("Horizontal", 1))
sketch13.addConstraint(Sketcher.Constraint("Vertical", 2))
sketch13.addConstraint(Sketcher.Constraint("Horizontal", 3))
sketch13.addConstraint(Sketcher.Constraint("DistanceX", 1, 1, 1, 2, Q("30 mm")))
sketch13.addConstraint(Sketcher.Constraint("DistanceX", -1, 1, 0, 2, Q("70 mm")))
sketch13.addConstraint(Sketcher.Constraint("DistanceY", 0, 2, 0, 1, Q("9.35 mm")))
sketch13.addConstraint(Sketcher.Constraint("DistanceY", -1, 1, 0, 2, Q("72.125 mm")))
pocket9 = doc.addObject("PartDesign::Pocket", "Pocket008")
body.addObject(pocket9)
pocket9.Profile = sketch13
pocket9.Length = 68.2

# Sketch on XZ plane
sketch14 = doc.addObject("Sketcher::SketchObject", "Sketch013")
body.addObject(sketch14)
sketch14.AttachmentSupport = (doc.XZ_Plane, [""])
sketch14.MapMode = "FlatFace"
add_polygon(sketch14, [(97.5, -86.25), (100.5, -86.25), (100.5, -88.75), (97.5, -88.75), (97.5, -90), (72.5, -90), (72.5, -88.75), (69.5, -88.75), (69.5, -86.25), (72.5, -86.25), (72.5, -85), (97.5, -85)])  # lines 0-11
sketch14.addConstraint(Sketcher.Constraint("Horizontal", 0))
sketch14.addConstraint(Sketcher.Constraint("Vertical", 1))
sketch14.addConstraint(Sketcher.Constraint("Horizontal", 2))
sketch14.addConstraint(Sketcher.Constraint("Vertical", 3))
sketch14.addConstraint(Sketcher.Constraint("Horizontal", 4))
sketch14.addConstraint(Sketcher.Constraint("Vertical", 5))
sketch14.addConstraint(Sketcher.Constraint("Horizontal", 6))
sketch14.addConstraint(Sketcher.Constraint("Vertical", 7))
sketch14.addConstraint(Sketcher.Constraint("Horizontal", 8))
sketch14.addConstraint(Sketcher.Constraint("Vertical", 9))
sketch14.addConstraint(Sketcher.Constraint("Horizontal", 10))
sketch14.addConstraint(Sketcher.Constraint("Vertical", 11))
sketch14.addConstraint(Sketcher.Constraint("Horizontal", 2, 2, 5, 2))
sketch14.addConstraint(Sketcher.Constraint("Horizontal", 0, 2, 7, 2))
sketch14.addConstraint(Sketcher.Constraint("Vertical", 5, 2, 8, 2))
sketch14.addConstraint(Sketcher.Constraint("Vertical", 3, 2, 10, 2))
sketch14.addConstraint(Sketcher.Constraint("Equal", 2, 6))
sketch14.addConstraint(Sketcher.Constraint("Equal", 5, 9))
sketch14.addConstraint(Sketcher.Constraint("DistanceX", 0, 1, 0, 2, Q("3 mm")))
sketch14.addConstraint(Sketcher.Constraint("DistanceX", 4, 2, 4, 1, Q("25 mm")))
sketch14.addConstraint(Sketcher.Constraint("DistanceY", 1, 2, 1, 1, Q("2.5 mm")))
sketch14.addConstraint(Sketcher.Constraint("DistanceY", 3, 2, -1, 1, Q("90 mm")))
sketch14.addConstraint(Sketcher.Constraint("DistanceY", 9, 2, -1, 1, Q("85 mm")))
sketch14.addConstraint(Sketcher.Constraint("DistanceX", -1, 1, 0, 2, Q("100.5 mm")))
pocket10 = doc.addObject("PartDesign::Pocket", "Pocket009")
body.addObject(pocket10)
pocket10.Profile = sketch14
pocket10.Length = 54.5
doc.recompute()

fillet = doc.addObject("PartDesign::Fillet", "Fillet")
body.addObject(fillet)
fillet.Base = (pocket10, edges_at(pocket10, [
    (0, 76.25, 50),
    (0, 142.5, -20),
    (0, 76.25, -90),
    (-10, 10, -90),
    (0, 10, -20),
    (-20, 5, -90),
    (-20, 10, -20),
    (-10, 10, 50),
    (-20, 5, 50),
    (190, 5, -90),
    (180, 10, -90),
    (190, 10, -20),
    (170, 10, -20),
    (190, 5, 50),
    (180, 10, 50),
    (85, 142.5, 50),
    (170, 76.25, -90),
    (170, 142.5, -20),
    (170, 76.25, 50),
]))
fillet.Radius = 2

doc.recompute()
